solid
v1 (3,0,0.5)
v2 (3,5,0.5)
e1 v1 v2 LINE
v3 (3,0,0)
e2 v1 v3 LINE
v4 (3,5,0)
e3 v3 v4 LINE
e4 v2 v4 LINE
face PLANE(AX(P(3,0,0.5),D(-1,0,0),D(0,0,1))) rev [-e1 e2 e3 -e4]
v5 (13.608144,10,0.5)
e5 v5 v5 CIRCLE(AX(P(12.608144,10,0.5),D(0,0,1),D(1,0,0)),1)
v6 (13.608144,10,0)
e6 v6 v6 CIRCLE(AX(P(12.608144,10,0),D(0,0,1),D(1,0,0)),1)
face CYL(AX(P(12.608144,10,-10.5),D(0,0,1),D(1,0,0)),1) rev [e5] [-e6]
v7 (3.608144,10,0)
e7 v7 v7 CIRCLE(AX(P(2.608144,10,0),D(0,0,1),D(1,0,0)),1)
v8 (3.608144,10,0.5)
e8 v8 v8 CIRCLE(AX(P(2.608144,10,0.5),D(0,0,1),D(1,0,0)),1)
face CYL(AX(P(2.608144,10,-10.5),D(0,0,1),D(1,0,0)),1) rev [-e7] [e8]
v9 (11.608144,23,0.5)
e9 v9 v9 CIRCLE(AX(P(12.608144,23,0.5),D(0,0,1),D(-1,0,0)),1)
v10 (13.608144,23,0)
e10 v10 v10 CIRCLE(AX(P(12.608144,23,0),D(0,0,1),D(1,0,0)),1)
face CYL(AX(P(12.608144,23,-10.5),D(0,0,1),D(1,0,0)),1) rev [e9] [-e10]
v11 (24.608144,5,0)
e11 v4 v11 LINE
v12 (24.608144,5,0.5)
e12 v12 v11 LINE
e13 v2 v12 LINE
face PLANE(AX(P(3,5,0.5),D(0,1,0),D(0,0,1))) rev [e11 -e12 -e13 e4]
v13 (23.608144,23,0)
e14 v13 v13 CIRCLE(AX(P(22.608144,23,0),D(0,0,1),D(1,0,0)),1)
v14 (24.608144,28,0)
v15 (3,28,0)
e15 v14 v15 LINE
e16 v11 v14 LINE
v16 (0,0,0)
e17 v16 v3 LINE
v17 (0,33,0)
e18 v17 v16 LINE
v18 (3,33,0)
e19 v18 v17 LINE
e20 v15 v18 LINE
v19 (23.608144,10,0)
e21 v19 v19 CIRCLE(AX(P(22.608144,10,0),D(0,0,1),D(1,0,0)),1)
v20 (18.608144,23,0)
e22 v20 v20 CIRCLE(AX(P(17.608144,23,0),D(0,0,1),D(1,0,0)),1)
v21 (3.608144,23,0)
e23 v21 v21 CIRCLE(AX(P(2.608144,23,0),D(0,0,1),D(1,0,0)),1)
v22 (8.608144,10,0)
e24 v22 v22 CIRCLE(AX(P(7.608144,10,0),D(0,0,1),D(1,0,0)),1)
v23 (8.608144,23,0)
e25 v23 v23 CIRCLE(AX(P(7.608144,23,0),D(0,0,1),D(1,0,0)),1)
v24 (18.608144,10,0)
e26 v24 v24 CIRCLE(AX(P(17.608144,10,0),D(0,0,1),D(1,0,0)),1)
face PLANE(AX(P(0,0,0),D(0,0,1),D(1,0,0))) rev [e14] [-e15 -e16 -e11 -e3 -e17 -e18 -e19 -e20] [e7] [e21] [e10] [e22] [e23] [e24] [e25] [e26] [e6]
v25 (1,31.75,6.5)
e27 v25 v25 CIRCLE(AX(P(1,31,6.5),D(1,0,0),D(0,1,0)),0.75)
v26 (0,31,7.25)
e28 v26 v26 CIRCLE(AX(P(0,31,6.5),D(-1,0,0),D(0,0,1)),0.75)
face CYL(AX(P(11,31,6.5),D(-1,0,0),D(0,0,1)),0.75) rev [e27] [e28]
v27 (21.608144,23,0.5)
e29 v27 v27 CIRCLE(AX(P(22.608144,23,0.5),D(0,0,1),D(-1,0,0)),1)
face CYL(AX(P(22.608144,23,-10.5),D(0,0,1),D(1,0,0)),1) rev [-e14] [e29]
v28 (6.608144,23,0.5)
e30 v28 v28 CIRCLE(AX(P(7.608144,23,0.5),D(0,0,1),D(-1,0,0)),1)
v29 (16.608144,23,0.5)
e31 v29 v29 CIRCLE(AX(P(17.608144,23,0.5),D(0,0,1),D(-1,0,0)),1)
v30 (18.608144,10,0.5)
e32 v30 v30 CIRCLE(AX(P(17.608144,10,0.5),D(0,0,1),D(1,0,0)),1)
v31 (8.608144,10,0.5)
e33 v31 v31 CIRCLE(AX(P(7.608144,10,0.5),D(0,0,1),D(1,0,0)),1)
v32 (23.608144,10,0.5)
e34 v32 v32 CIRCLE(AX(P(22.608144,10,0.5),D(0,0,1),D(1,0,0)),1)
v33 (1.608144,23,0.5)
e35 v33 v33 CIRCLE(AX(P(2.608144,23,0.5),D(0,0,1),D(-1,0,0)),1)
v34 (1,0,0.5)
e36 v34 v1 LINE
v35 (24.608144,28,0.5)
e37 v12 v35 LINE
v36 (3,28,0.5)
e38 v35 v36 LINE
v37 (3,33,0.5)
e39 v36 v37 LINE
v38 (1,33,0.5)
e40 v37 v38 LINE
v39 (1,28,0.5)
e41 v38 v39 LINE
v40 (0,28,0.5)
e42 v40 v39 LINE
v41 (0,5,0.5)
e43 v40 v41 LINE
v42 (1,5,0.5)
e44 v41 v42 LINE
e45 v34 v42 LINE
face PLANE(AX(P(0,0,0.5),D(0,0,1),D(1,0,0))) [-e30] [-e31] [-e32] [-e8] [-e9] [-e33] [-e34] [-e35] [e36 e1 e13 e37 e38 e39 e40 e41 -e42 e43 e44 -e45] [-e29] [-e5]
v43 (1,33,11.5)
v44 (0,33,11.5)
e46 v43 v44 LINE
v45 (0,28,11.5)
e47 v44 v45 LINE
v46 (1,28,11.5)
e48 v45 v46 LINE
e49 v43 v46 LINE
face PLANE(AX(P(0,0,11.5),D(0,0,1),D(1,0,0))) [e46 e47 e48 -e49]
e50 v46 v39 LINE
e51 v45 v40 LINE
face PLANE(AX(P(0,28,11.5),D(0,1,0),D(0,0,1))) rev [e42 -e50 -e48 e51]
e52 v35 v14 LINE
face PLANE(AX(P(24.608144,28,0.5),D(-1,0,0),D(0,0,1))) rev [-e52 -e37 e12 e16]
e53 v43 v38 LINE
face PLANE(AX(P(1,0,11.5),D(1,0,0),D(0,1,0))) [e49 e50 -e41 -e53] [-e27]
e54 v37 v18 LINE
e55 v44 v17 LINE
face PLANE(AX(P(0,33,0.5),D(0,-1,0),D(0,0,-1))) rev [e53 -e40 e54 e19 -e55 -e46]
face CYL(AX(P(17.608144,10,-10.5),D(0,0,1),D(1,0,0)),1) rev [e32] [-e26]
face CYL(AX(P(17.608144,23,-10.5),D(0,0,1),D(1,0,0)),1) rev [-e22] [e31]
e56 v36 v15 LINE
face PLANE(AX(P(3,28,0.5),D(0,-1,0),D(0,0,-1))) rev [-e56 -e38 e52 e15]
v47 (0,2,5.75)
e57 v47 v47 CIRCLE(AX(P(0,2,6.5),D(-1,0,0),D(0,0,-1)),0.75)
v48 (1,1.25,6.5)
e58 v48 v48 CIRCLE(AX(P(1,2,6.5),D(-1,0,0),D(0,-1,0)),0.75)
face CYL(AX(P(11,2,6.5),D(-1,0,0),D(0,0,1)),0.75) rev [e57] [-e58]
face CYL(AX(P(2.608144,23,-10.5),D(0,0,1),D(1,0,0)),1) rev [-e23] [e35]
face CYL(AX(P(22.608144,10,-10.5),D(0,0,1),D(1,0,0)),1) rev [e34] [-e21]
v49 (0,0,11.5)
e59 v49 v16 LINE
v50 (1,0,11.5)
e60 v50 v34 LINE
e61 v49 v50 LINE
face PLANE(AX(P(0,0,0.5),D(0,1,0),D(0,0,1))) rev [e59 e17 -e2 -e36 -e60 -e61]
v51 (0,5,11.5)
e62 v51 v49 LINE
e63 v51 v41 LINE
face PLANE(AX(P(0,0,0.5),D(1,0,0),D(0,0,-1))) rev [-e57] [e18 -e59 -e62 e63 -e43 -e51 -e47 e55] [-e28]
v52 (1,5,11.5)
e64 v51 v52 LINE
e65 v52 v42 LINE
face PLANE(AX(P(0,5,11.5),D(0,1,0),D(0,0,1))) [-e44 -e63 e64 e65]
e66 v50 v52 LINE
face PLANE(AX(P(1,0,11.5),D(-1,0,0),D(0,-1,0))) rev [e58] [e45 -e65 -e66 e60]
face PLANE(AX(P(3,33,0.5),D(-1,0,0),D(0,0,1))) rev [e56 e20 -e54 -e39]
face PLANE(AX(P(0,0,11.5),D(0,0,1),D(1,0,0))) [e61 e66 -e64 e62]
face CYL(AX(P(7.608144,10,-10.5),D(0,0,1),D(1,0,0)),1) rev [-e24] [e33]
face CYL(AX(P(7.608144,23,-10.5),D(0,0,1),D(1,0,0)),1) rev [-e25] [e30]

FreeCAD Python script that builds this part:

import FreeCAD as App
import Part
import Sketcher
Q = App.Units.Quantity

doc = App.newDocument("Part")
body = doc.addObject("PartDesign::Body", "Body")

# Sketch on XY plane
sketch1 = body.newObject("Sketcher::SketchObject", "Sketch")
sketch1.AttachmentSupport = (doc.getObject("XY_Plane"), [""])
sketch1.MapMode = "FlatFace"
sketch1.addGeometry(Part.LineSegment(App.Vector(3, 5, 0), App.Vector(24.608144, 5, 0)), False)
sketch1.addGeometry(Part.LineSegment(App.Vector(24.608144, 5, 0), App.Vector(24.608144, 28, 0)), False)
sketch1.addGeometry(Part.LineSegment(App.Vector(24.608144, 28, 0), App.Vector(3, 28, 0)), False)
sketch1.addGeometry(Part.LineSegment(App.Vector(3, 28, 0), App.Vector(3, 33, 0)), False)
sketch1.addGeometry(Part.LineSegment(App.Vector(3, 33, 0), App.Vector(0, 33, 0)), False)
sketch1.addGeometry(Part.LineSegment(App.Vector(0, 33, 0), App.Vector(0, 0, 0)), False)
sketch1.addGeometry(Part.LineSegment(App.Vector(0, 0, 0), App.Vector(3, 0, 0)), False)
sketch1.addGeometry(Part.LineSegment(App.Vector(3, 0, 0), App.Vector(3, 5, 0)), False)
sketch1.addConstraint(Sketcher.Constraint("Coincident", 0, 2, 1, 1))
sketch1.addConstraint(Sketcher.Constraint("Coincident", 1, 2, 2, 1))
sketch1.addConstraint(Sketcher.Constraint("Coincident", 2, 2, 3, 1))
sketch1.addConstraint(Sketcher.Constraint("Coincident", 3, 2, 4, 1))
sketch1.addConstraint(Sketcher.Constraint("Coincident", 4, 2, 5, 1))
sketch1.addConstraint(Sketcher.Constraint("Coincident", 5, 2, 6, 1))
sketch1.addConstraint(Sketcher.Constraint("Coincident", 6, 2, 7, 1))
sketch1.addConstraint(Sketcher.Constraint("Coincident", 7, 2, 0, 1))
sketch1.addConstraint(Sketcher.Constraint("Horizontal", 0))
sketch1.addConstraint(Sketcher.Constraint("Vertical", 1))
sketch1.addConstraint(Sketcher.Constraint("Horizontal", 2))
sketch1.addConstraint(Sketcher.Constraint("Vertical", 3))
sketch1.addConstraint(Sketcher.Constraint("Horizontal", 4))
sketch1.addConstraint(Sketcher.Constraint("Vertical", 5))
sketch1.addConstraint(Sketcher.Constraint("Horizontal", 6))
sketch1.addConstraint(Sketcher.Constraint("Vertical", 7))
sketch1.addConstraint(Sketcher.Constraint("Coincident", 5, 2, -1, 1))
sketch1.addConstraint(Sketcher.Constraint("Vertical", 3, 2, 6, 2))
sketch1.addConstraint(Sketcher.Constraint("Equal", 3, 7))
sketch1.addConstraint(Sketcher.Constraint("DistanceX", 4, 2, 4, 1, Q("3 mm")))
sketch1.addConstraint(Sketcher.Constraint("DistanceY", 1, 1, 1, 2, Q("23 mm")))
sketch1.addConstraint(Sketcher.Constraint("DistanceY", 3, 1, 3, 2, Q("5 mm")))
sketch1.addConstraint(Sketcher.Constraint("DistanceX", 0, 1, 0, 2, Q("21.608144 mm")))
pad1 = body.newObject("PartDesign::Pad", "Pad")
pad1.Profile = sketch1
pad1.Length = 0.5

# Sketch on XY plane
sketch2 = body.newObject("Sketcher::SketchObject", "Sketch001")
sketch2.AttachmentSupport = (doc.getObject("XY_Plane"), [""])
sketch2.MapMode = "FlatFace"
sketch2.AttachmentOffset = App.Placement(App.Vector(0, 0, 0.5), App.Rotation())
sketch2.addGeometry(Part.LineSegment(App.Vector(0, 33, 0), App.Vector(0, 28, 0)), False)
sketch2.addGeometry(Part.LineSegment(App.Vector(0, 28, 0), App.Vector(1, 28, 0)), False)
sketch2.addGeometry(Part.LineSegment(App.Vector(1, 28, 0), App.Vector(1, 33, 0)), False)
sketch2.addGeometry(Part.LineSegment(App.Vector(1, 33, 0), App.Vector(0, 33, 0)), False)
sketch2.addGeometry(Part.LineSegment(App.Vector(0, 5, 0), App.Vector(0, 0, 0)), False)
sketch2.addGeometry(Part.LineSegment(App.Vector(0, 0, 0), App.Vector(1, 0, 0)), False)
sketch2.addGeometry(Part.LineSegment(App.Vector(1, 0, 0), App.Vector(1, 5, 0)), False)
sketch2.addGeometry(Part.LineSegment(App.Vector(1, 5, 0), App.Vector(0, 5, 0)), False)
sketch2.addConstraint(Sketcher.Constraint("Coincident", 0, 2, 1, 1))
sketch2.addConstraint(Sketcher.Constraint("Coincident", 1, 2, 2, 1))
sketch2.addConstraint(Sketcher.Constraint("Coincident", 2, 2, 3, 1))
sketch2.addConstraint(Sketcher.Constraint("Coincident", 3, 2, 0, 1))
sketch2.addConstraint(Sketcher.Constraint("Coincident", 4, 2, 5, 1))
sketch2.addConstraint(Sketcher.Constraint("Coincident", 5, 2, 6, 1))
sketch2.addConstraint(Sketcher.Constraint("Coincident", 6, 2, 7, 1))
sketch2.addConstraint(Sketcher.Constraint("Coincident", 7, 2, 4, 1))
sketch2.addConstraint(Sketcher.Constraint("Vertical", 0))
sketch2.addConstraint(Sketcher.Constraint("Horizontal", 1))
sketch2.addConstraint(Sketcher.Constraint("Vertical", 2))
sketch2.addConstraint(Sketcher.Constraint("Horizontal", 3))
sketch2.addConstraint(Sketcher.Constraint("Vertical", 4))
sketch2.addConstraint(Sketcher.Constraint("Horizontal", 5))
sketch2.addConstraint(Sketcher.Constraint("Vertical", 6))
sketch2.addConstraint(Sketcher.Constraint("Horizontal", 7))
sketch2.addConstraint(Sketcher.Constraint("Coincident", 4, 2, -1, 1))
sketch2.addConstraint(Sketcher.Constraint("PointOnObject", 0, 2, -2))
sketch2.addConstraint(Sketcher.Constraint("Vertical", 2, 2, 5, 2))
sketch2.addConstraint(Sketcher.Constraint("Equal", 2, 4))
sketch2.addConstraint(Sketcher.Constraint("DistanceX", 1, 1, 1, 2, Q("1 mm")))
sketch2.addConstraint(Sketcher.Constraint("DistanceY", 0, 2, 0, 1, Q("5 mm")))
sketch2.addConstraint(Sketcher.Constraint("DistanceY", -1, 1, 0, 2, Q("28 mm")))
pad2 = body.newObject("PartDesign::Pad", "Pad001")
pad2.Profile = sketch2
pad2.Length = 11

# Sketch on XY plane
sketch3 = body.newObject("Sketcher::SketchObject", "Sketch002")
sketch3.AttachmentSupport = (doc.getObject("XY_Plane"), [""])
sketch3.MapMode = "FlatFace"
sketch3.AttachmentOffset = App.Placement(App.Vector(0, 0, 0.5), App.Rotation())
sketch3.addGeometry(Part.Circle(App.Vector(22.608144, 10, 0), App.Vector(0, 0, 1), 1), False)
sketch3.addGeometry(Part.Circle(App.Vector(17.608144, 10, 0), App.Vector(0, 0, 1), 1), False)
sketch3.addGeometry(Part.Circle(App.Vector(12.608144, 10, 0), App.Vector(0, 0, 1), 1), False)
sketch3.addGeometry(Part.Circle(App.Vector(7.608144, 10, 0), App.Vector(0, 0, 1), 1), False)
sketch3.addGeometry(Part.Circle(App.Vector(2.608144, 10, 0), App.Vector(0, 0, 1), 1), False)
sketch3.addGeometry(Part.Circle(App.Vector(2.608144, 23, 0), App.Vector(0, 0, 1), 1), False)
sketch3.addGeometry(Part.Circle(App.Vector(7.608144, 23, 0), App.Vector(0, 0, 1), 1), False)
sketch3.addGeometry(Part.Circle(App.Vector(12.608144, 23, 0), App.Vector(0, 0, 1), 1), False)
sketch3.addGeometry(Part.Circle(App.Vector(17.608144, 23, 0), App.Vector(0, 0, 1), 1), False)
sketch3.addGeometry(Part.Circle(App.Vector(22.608144, 23, 0), App.Vector(0, 0, 1), 1), False)
sketch3.addConstraint(Sketcher.Constraint("Equal", 0, 1))
sketch3.addConstraint(Sketcher.Constraint("Equal", 1, 2))
sketch3.addConstraint(Sketcher.Constraint("Equal", 2, 3))
sketch3.addConstraint(Sketcher.Constraint("Equal", 3, 4))
sketch3.addConstraint(Sketcher.Constraint("Equal", 4, 5))
sketch3.addConstraint(Sketcher.Constraint("Equal", 5, 6))
sketch3.addConstraint(Sketcher.Constraint("Equal", 6, 7))
sketch3.addConstraint(Sketcher.Constraint("Equal", 7, 8))
sketch3.addConstraint(Sketcher.Constraint("Equal", 8, 9))
sketch3.addConstraint(Sketcher.Constraint("Horizontal", 0, 3, 1, 3))
sketch3.addConstraint(Sketcher.Constraint("Horizontal", 1, 3, 2, 3))
sketch3.addConstraint(Sketcher.Constraint("Horizontal", 2, 3, 3, 3))
sketch3.addConstraint(Sketcher.Constraint("Horizontal", 3, 3, 4, 3))
sketch3.addConstraint(Sketcher.Constraint("Horizontal", 5, 3, 6, 3))
sketch3.addConstraint(Sketcher.Constraint("Horizontal", 6, 3, 7, 3))
sketch3.addConstraint(Sketcher.Constraint("Horizontal", 7, 3, 8, 3))
sketch3.addConstraint(Sketcher.Constraint("Horizontal", 8, 3, 9, 3))
sketch3.addConstraint(Sketcher.Constraint("Vertical", 4, 3, 5, 3))
sketch3.addConstraint(Sketcher.Constraint("Vertical", 3, 3, 6, 3))
sketch3.addConstraint(Sketcher.Constraint("Vertical", 2, 3, 7, 3))
sketch3.addConstraint(Sketcher.Constraint("Vertical", 1, 3, 8, 3))
sketch3.addConstraint(Sketcher.Constraint("Vertical", 0, 3, 9, 3))
sketch3.addConstraint(Sketcher.Constraint("Diameter", 0, Q("2 mm")))
sketch3.addConstraint(Sketcher.Constraint("DistanceY", -1, 1, 0, 3, Q("10 mm")))
sketch3.addConstraint(Sketcher.Constraint("DistanceY", -1, 1, 5, 3, Q("23 mm")))
sketch3.addConstraint(Sketcher.Constraint("DistanceX", 1, 3, 0, 3, Q("5 mm")))
sketch3.addConstraint(Sketcher.Constraint("DistanceX", 2, 3, 1, 3, Q("5 mm")))
sketch3.addConstraint(Sketcher.Constraint("DistanceX", 3, 3, 2, 3, Q("5 mm")))
sketch3.addConstraint(Sketcher.Constraint("DistanceX", 4, 3, 3, 3, Q("5 mm")))
sketch3.addConstraint(Sketcher.Constraint("DistanceX", -1, 1, 0, 3, Q("22.608144 mm")))
pocket1 = body.newObject("PartDesign::Pocket", "Pocket")
pocket1.Profile = sketch3
pocket1.Length = 11

# Sketch on YZ plane
sketch4 = body.newObject("Sketcher::SketchObject", "Sketch003")
sketch4.AttachmentSupport = (doc.getObject("YZ_Plane"), [""])
sketch4.MapMode = "FlatFace"
sketch4.addGeometry(Part.Circle(App.Vector(31, 6.5, 0), App.Vector(0, 0, 1), 0.75), False)
sketch4.addGeometry(Part.Circle(App.Vector(2, 6.5, 0), App.Vector(0, 0, 1), 0.75), False)
sketch4.addConstraint(Sketcher.Constraint("Equal", 0, 1))
sketch4.addConstraint(Sketcher.Constraint("Horizontal", 0, 3, 1, 3))
sketch4.addConstraint(Sketcher.Constraint("Diameter", 0, Q("1.5 mm")))
sketch4.addConstraint(Sketcher.Constraint("DistanceX", -1, 1, 0, 3, Q("31 mm")))
sketch4.addConstraint(Sketcher.Constraint("DistanceX", -1, 1, 1, 3, Q("2 mm")))
sketch4.addConstraint(Sketcher.Constraint("DistanceY", -1, 1, 0, 3, Q("6.5 mm")))
pocket2 = body.newObject("PartDesign::Pocket", "Pocket001")
pocket2.Profile = sketch4
pocket2.Length = 11
pocket2.Reversed = True

doc.recompute()
